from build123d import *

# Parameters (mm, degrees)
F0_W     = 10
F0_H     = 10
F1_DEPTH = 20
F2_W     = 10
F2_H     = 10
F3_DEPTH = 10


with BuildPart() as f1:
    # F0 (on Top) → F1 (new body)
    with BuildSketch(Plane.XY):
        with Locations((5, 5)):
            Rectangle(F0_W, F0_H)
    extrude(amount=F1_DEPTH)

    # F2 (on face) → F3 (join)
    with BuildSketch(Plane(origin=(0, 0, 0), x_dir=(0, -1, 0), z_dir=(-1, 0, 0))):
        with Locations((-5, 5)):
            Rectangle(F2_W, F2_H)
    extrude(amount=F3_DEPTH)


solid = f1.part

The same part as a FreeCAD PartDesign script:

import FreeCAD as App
import Part
import Sketcher
Q = App.Units.Quantity

doc = App.newDocument("Part")
body = doc.addObject("PartDesign::Body", "Body")

# Sketch on XY plane
sketch1 = body.newObject("Sketcher::SketchObject", "Sketch")
sketch1.AttachmentSupport = (doc.getObject("XY_Plane"), [""])
sketch1.MapMode = "FlatFace"
sketch1.addGeometry([
    Part.LineSegment(App.Vector(0, 10, 0), App.Vector(0, 0, 0)),
    Part.LineSegment(App.Vector(0, 0, 0), App.Vector(10, 0, 0)),
    Part.LineSegment(App.Vector(10, 0, 0), App.Vector(10, 10, 0)),
    Part.LineSegment(App.Vector(10, 10, 0), App.Vector(0, 10, 0)),
], False)
sketch1.addConstraint([
    Sketcher.Constraint("Coincident", 0, 2, 1, 1),
    Sketcher.Constraint("Coincident", 1, 2, 2, 1),
    Sketcher.Constraint("Coincident", 2, 2, 3, 1),
    Sketcher.Constraint("Coincident", 3, 2, 0, 1),
    Sketcher.Constraint("Vertical", 0),
    Sketcher.Constraint("Horizontal", 1),
    Sketcher.Constraint("Vertical", 2),
    Sketcher.Constraint("Horizontal", 3),
    Sketcher.Constraint("Coincident", 0, 2, -1, 1),
    Sketcher.Constraint("Equal", 3, 0),
    Sketcher.Constraint("DistanceX", 1, 1, 1, 2, Q("10 mm")),
])
pad1 = body.newObject("PartDesign::Pad", "Pad")
pad1.Profile = sketch1
pad1.Length = 20

# Sketch on YZ plane
sketch2 = body.newObject("Sketcher::SketchObject", "Sketch001")
sketch2.AttachmentSupport = (doc.getObject("YZ_Plane"), [""])
sketch2.MapMode = "FlatFace"
sketch2.addGeometry([
    Part.LineSegment(App.Vector(10, 10, 0), App.Vector(10, 0, 0)),
    Part.LineSegment(App.Vector(10, 0, 0), App.Vector(0, 0, 0)),
    Part.LineSegment(App.Vector(0, 0, 0), App.Vector(0, 10, 0)),
    Part.LineSegment(App.Vector(0, 10, 0), App.Vector(10, 10, 0)),
], False)
sketch2.addConstraint([
    Sketcher.Constraint("Coincident", 0, 2, 1, 1),
    Sketcher.Constraint("Coincident", 1, 2, 2, 1),
    Sketcher.Constraint("Coincident", 2, 2, 3, 1),
    Sketcher.Constraint("Coincident", 3, 2, 0, 1),
    Sketcher.Constraint("Vertical", 0),
    Sketcher.Constraint("Horizontal", 1),
    Sketcher.Constraint("Vertical", 2),
    Sketcher.Constraint("Horizontal", 3),
    Sketcher.Constraint("Coincident", 1, 2, -1, 1),
    Sketcher.Constraint("Equal", 3, 0),
    Sketcher.Constraint("DistanceX", 1, 2, 1, 1, Q("10 mm")),
])
pad2 = body.newObject("PartDesign::Pad", "Pad001")
pad2.Profile = sketch2
pad2.Length = 10
pad2.Reversed = True

doc.recompute()
